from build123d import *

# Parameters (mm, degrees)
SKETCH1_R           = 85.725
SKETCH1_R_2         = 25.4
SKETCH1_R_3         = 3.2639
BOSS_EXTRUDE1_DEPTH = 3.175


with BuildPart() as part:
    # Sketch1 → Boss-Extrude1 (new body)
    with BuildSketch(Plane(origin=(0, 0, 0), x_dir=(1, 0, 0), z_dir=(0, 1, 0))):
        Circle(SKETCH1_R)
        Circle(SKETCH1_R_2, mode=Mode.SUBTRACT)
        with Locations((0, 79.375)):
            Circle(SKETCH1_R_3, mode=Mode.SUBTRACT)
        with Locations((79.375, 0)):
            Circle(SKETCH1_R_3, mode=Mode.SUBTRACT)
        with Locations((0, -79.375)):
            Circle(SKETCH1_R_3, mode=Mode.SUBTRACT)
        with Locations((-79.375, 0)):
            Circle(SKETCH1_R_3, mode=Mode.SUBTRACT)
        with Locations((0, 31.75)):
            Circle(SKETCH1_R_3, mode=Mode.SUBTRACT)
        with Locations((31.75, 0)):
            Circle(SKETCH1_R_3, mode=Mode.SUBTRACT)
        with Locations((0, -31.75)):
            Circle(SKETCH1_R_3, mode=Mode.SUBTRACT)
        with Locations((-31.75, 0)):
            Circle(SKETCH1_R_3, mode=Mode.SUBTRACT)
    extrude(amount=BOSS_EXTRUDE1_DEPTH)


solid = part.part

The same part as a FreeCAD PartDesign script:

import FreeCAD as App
import Part
import Sketcher
from FreeCAD import Vector
Q = App.Units.Quantity

doc = App.newDocument("Part")
body = doc.addObject("PartDesign::Body", "Body")

sketch1 = body.newObject("Sketcher::SketchObject", "Sketch")
sketch1.AttachmentSupport = (doc.getObject("XZ_Plane"), [""])
sketch1.MapMode = "FlatFace"
sketch1.addGeometry([
    Part.Circle(Vector(0, 0, 0), Vector(0, 0, 1), 85.7),
    Part.Circle(Vector(0, 79.4, 0), Vector(0, 0, 1), 3.3),
    Part.Circle(Vector(0, 31.8, 0), Vector(0, 0, 1), 3.3),
    Part.Circle(Vector(-79.4, 0, 0), Vector(0, 0, 1), 3.3),
    Part.Circle(Vector(-31.8, 0, 0), Vector(0, 0, 1), 3.3),
    Part.Circle(Vector(0, 0, 0), Vector(0, 0, 1), 25.4),
    Part.Circle(Vector(31.8, 0, 0), Vector(0, 0, 1), 3.3),
    Part.Circle(Vector(0, -31.8, 0), Vector(0, 0, 1), 3.3),
    Part.Circle(Vector(79.4, 0, 0), Vector(0, 0, 1), 3.3),
    Part.Circle(Vector(0, -79.4, 0), Vector(0, 0, 1), 3.3),
], False)
sketch1.addConstraint([
    Sketcher.Constraint("Coincident", 0, 3, -1, 1),
    Sketcher.Constraint("Coincident", 5, 3, -1, 1),
    Sketcher.Constraint("Equal", 1, 2),
    Sketcher.Constraint("Equal", 2, 3),
    Sketcher.Constraint("Equal", 3, 4),
    Sketcher.Constraint("Equal", 4, 6),
    Sketcher.Constraint("Equal", 6, 7),
    Sketcher.Constraint("Equal", 7, 8),
    Sketcher.Constraint("Equal", 8, 9),
    Sketcher.Constraint("Symmetric", 4, 3, 6, 3, -1, 1),
    Sketcher.Constraint("Symmetric", 2, 3, 7, 3, -1, 1),
    Sketcher.Constraint("Symmetric", 3, 3, 8, 3, -1, 1),
    Sketcher.Constraint("Symmetric", 1, 3, 9, 3, -1, 1),
    Sketcher.Constraint("PointOnObject", 1, 3, -2),
    Sketcher.Constraint("PointOnObject", 2, 3, -2),
    Sketcher.Constraint("PointOnObject", 3, 3, -1),
    Sketcher.Constraint("PointOnObject", 4, 3, -1),
    Sketcher.Constraint("Diameter", 5, Q("2 in")),
    Sketcher.Constraint("Diameter", 0, Q("6.75 in")),
    Sketcher.Constraint("Diameter", 1, Q("0.257 in")),
    Sketcher.Constraint("DistanceX", 4, 3, 6, 3, Q("2.5 in")),
    Sketcher.Constraint("DistanceY", 7, 3, 2, 3, Q("2.5 in")),
    Sketcher.Constraint("DistanceY", -1, 1, 1, 3, Q("3.125 in")),
    Sketcher.Constraint("DistanceX", 3, 3, -1, 1, Q("3.125 in")),
])
pad1 = body.newObject("PartDesign::Pad", "Pad")
pad1.Profile = sketch1
pad1.Length = Q("0.125 in")
pad1.Reversed = True

doc.recompute()
